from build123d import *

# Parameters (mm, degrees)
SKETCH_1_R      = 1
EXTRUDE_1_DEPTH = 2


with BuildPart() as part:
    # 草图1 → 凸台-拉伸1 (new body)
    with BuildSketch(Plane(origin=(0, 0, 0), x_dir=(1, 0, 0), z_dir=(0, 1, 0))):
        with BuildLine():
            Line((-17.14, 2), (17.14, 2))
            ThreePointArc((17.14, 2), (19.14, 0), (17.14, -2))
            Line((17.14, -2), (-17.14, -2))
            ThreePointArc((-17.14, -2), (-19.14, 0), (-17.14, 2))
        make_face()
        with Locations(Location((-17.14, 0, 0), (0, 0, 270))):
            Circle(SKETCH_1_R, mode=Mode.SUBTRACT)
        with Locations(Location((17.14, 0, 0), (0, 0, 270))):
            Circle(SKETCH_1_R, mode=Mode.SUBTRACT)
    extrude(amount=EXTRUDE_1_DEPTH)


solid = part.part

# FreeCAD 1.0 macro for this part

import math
import FreeCAD as App
import Part
import Sketcher

V = App.Vector
Q = App.Units.Quantity

doc = App.newDocument("Part")
body = doc.addObject("PartDesign::Body", "Body")

sketch1 = doc.addObject("Sketcher::SketchObject", "Sketch")
body.addObject(sketch1)
sketch1.AttachmentSupport = (doc.XZ_Plane, [""])
sketch1.MapMode = "FlatFace"
sketch1.addGeometry([
    Part.LineSegment(V(17.1, -2, 0), V(-17.1, -2, 0)),
    Part.ArcOfCircle(Part.Circle(V(-17.1, 0, 0), V(0, 0, 1), 2), math.radians(90), math.radians(270)),
    Part.LineSegment(V(-17.1, 2, 0), V(17.1, 2, 0)),
    Part.ArcOfCircle(Part.Circle(V(17.1, 0, 0), V(0, 0, 1), 2), math.radians(-90), math.radians(90)),
    Part.Circle(V(17.1, 0, 0), V(0, 0, 1), 1),
    Part.Circle(V(-17.1, 0, 0), V(0, 0, 1), 1),
], False)
sketch1.addConstraint([
    Sketcher.Constraint("Tangent", 0, 2, 1, 2),
    Sketcher.Constraint("Tangent", 1, 1, 2, 1),
    Sketcher.Constraint("Tangent", 2, 2, 3, 2),
    Sketcher.Constraint("Tangent", 3, 1, 0, 1),
    Sketcher.Constraint("Horizontal", 0),
    Sketcher.Constraint("Horizontal", 2),
    Sketcher.Constraint("Coincident", 4, 3, 3, 3),
    Sketcher.Constraint("Coincident", 5, 3, 1, 3),
    Sketcher.Constraint("Equal", 4, 5),
    Sketcher.Constraint("Symmetric", 1, 3, 3, 3, -1, 1),
    Sketcher.Constraint("Diameter", 4, Q("2 mm")),
    Sketcher.Constraint("Radius", 1, Q("2 mm")),
    Sketcher.Constraint("DistanceX", 0, 2, 0, 1, Q("34.28 mm")),
])
pad1 = doc.addObject("PartDesign::Pad", "Pad")
body.addObject(pad1)
pad1.Profile = sketch1
pad1.Length = 2
pad1.Reversed = True

doc.recompute()
